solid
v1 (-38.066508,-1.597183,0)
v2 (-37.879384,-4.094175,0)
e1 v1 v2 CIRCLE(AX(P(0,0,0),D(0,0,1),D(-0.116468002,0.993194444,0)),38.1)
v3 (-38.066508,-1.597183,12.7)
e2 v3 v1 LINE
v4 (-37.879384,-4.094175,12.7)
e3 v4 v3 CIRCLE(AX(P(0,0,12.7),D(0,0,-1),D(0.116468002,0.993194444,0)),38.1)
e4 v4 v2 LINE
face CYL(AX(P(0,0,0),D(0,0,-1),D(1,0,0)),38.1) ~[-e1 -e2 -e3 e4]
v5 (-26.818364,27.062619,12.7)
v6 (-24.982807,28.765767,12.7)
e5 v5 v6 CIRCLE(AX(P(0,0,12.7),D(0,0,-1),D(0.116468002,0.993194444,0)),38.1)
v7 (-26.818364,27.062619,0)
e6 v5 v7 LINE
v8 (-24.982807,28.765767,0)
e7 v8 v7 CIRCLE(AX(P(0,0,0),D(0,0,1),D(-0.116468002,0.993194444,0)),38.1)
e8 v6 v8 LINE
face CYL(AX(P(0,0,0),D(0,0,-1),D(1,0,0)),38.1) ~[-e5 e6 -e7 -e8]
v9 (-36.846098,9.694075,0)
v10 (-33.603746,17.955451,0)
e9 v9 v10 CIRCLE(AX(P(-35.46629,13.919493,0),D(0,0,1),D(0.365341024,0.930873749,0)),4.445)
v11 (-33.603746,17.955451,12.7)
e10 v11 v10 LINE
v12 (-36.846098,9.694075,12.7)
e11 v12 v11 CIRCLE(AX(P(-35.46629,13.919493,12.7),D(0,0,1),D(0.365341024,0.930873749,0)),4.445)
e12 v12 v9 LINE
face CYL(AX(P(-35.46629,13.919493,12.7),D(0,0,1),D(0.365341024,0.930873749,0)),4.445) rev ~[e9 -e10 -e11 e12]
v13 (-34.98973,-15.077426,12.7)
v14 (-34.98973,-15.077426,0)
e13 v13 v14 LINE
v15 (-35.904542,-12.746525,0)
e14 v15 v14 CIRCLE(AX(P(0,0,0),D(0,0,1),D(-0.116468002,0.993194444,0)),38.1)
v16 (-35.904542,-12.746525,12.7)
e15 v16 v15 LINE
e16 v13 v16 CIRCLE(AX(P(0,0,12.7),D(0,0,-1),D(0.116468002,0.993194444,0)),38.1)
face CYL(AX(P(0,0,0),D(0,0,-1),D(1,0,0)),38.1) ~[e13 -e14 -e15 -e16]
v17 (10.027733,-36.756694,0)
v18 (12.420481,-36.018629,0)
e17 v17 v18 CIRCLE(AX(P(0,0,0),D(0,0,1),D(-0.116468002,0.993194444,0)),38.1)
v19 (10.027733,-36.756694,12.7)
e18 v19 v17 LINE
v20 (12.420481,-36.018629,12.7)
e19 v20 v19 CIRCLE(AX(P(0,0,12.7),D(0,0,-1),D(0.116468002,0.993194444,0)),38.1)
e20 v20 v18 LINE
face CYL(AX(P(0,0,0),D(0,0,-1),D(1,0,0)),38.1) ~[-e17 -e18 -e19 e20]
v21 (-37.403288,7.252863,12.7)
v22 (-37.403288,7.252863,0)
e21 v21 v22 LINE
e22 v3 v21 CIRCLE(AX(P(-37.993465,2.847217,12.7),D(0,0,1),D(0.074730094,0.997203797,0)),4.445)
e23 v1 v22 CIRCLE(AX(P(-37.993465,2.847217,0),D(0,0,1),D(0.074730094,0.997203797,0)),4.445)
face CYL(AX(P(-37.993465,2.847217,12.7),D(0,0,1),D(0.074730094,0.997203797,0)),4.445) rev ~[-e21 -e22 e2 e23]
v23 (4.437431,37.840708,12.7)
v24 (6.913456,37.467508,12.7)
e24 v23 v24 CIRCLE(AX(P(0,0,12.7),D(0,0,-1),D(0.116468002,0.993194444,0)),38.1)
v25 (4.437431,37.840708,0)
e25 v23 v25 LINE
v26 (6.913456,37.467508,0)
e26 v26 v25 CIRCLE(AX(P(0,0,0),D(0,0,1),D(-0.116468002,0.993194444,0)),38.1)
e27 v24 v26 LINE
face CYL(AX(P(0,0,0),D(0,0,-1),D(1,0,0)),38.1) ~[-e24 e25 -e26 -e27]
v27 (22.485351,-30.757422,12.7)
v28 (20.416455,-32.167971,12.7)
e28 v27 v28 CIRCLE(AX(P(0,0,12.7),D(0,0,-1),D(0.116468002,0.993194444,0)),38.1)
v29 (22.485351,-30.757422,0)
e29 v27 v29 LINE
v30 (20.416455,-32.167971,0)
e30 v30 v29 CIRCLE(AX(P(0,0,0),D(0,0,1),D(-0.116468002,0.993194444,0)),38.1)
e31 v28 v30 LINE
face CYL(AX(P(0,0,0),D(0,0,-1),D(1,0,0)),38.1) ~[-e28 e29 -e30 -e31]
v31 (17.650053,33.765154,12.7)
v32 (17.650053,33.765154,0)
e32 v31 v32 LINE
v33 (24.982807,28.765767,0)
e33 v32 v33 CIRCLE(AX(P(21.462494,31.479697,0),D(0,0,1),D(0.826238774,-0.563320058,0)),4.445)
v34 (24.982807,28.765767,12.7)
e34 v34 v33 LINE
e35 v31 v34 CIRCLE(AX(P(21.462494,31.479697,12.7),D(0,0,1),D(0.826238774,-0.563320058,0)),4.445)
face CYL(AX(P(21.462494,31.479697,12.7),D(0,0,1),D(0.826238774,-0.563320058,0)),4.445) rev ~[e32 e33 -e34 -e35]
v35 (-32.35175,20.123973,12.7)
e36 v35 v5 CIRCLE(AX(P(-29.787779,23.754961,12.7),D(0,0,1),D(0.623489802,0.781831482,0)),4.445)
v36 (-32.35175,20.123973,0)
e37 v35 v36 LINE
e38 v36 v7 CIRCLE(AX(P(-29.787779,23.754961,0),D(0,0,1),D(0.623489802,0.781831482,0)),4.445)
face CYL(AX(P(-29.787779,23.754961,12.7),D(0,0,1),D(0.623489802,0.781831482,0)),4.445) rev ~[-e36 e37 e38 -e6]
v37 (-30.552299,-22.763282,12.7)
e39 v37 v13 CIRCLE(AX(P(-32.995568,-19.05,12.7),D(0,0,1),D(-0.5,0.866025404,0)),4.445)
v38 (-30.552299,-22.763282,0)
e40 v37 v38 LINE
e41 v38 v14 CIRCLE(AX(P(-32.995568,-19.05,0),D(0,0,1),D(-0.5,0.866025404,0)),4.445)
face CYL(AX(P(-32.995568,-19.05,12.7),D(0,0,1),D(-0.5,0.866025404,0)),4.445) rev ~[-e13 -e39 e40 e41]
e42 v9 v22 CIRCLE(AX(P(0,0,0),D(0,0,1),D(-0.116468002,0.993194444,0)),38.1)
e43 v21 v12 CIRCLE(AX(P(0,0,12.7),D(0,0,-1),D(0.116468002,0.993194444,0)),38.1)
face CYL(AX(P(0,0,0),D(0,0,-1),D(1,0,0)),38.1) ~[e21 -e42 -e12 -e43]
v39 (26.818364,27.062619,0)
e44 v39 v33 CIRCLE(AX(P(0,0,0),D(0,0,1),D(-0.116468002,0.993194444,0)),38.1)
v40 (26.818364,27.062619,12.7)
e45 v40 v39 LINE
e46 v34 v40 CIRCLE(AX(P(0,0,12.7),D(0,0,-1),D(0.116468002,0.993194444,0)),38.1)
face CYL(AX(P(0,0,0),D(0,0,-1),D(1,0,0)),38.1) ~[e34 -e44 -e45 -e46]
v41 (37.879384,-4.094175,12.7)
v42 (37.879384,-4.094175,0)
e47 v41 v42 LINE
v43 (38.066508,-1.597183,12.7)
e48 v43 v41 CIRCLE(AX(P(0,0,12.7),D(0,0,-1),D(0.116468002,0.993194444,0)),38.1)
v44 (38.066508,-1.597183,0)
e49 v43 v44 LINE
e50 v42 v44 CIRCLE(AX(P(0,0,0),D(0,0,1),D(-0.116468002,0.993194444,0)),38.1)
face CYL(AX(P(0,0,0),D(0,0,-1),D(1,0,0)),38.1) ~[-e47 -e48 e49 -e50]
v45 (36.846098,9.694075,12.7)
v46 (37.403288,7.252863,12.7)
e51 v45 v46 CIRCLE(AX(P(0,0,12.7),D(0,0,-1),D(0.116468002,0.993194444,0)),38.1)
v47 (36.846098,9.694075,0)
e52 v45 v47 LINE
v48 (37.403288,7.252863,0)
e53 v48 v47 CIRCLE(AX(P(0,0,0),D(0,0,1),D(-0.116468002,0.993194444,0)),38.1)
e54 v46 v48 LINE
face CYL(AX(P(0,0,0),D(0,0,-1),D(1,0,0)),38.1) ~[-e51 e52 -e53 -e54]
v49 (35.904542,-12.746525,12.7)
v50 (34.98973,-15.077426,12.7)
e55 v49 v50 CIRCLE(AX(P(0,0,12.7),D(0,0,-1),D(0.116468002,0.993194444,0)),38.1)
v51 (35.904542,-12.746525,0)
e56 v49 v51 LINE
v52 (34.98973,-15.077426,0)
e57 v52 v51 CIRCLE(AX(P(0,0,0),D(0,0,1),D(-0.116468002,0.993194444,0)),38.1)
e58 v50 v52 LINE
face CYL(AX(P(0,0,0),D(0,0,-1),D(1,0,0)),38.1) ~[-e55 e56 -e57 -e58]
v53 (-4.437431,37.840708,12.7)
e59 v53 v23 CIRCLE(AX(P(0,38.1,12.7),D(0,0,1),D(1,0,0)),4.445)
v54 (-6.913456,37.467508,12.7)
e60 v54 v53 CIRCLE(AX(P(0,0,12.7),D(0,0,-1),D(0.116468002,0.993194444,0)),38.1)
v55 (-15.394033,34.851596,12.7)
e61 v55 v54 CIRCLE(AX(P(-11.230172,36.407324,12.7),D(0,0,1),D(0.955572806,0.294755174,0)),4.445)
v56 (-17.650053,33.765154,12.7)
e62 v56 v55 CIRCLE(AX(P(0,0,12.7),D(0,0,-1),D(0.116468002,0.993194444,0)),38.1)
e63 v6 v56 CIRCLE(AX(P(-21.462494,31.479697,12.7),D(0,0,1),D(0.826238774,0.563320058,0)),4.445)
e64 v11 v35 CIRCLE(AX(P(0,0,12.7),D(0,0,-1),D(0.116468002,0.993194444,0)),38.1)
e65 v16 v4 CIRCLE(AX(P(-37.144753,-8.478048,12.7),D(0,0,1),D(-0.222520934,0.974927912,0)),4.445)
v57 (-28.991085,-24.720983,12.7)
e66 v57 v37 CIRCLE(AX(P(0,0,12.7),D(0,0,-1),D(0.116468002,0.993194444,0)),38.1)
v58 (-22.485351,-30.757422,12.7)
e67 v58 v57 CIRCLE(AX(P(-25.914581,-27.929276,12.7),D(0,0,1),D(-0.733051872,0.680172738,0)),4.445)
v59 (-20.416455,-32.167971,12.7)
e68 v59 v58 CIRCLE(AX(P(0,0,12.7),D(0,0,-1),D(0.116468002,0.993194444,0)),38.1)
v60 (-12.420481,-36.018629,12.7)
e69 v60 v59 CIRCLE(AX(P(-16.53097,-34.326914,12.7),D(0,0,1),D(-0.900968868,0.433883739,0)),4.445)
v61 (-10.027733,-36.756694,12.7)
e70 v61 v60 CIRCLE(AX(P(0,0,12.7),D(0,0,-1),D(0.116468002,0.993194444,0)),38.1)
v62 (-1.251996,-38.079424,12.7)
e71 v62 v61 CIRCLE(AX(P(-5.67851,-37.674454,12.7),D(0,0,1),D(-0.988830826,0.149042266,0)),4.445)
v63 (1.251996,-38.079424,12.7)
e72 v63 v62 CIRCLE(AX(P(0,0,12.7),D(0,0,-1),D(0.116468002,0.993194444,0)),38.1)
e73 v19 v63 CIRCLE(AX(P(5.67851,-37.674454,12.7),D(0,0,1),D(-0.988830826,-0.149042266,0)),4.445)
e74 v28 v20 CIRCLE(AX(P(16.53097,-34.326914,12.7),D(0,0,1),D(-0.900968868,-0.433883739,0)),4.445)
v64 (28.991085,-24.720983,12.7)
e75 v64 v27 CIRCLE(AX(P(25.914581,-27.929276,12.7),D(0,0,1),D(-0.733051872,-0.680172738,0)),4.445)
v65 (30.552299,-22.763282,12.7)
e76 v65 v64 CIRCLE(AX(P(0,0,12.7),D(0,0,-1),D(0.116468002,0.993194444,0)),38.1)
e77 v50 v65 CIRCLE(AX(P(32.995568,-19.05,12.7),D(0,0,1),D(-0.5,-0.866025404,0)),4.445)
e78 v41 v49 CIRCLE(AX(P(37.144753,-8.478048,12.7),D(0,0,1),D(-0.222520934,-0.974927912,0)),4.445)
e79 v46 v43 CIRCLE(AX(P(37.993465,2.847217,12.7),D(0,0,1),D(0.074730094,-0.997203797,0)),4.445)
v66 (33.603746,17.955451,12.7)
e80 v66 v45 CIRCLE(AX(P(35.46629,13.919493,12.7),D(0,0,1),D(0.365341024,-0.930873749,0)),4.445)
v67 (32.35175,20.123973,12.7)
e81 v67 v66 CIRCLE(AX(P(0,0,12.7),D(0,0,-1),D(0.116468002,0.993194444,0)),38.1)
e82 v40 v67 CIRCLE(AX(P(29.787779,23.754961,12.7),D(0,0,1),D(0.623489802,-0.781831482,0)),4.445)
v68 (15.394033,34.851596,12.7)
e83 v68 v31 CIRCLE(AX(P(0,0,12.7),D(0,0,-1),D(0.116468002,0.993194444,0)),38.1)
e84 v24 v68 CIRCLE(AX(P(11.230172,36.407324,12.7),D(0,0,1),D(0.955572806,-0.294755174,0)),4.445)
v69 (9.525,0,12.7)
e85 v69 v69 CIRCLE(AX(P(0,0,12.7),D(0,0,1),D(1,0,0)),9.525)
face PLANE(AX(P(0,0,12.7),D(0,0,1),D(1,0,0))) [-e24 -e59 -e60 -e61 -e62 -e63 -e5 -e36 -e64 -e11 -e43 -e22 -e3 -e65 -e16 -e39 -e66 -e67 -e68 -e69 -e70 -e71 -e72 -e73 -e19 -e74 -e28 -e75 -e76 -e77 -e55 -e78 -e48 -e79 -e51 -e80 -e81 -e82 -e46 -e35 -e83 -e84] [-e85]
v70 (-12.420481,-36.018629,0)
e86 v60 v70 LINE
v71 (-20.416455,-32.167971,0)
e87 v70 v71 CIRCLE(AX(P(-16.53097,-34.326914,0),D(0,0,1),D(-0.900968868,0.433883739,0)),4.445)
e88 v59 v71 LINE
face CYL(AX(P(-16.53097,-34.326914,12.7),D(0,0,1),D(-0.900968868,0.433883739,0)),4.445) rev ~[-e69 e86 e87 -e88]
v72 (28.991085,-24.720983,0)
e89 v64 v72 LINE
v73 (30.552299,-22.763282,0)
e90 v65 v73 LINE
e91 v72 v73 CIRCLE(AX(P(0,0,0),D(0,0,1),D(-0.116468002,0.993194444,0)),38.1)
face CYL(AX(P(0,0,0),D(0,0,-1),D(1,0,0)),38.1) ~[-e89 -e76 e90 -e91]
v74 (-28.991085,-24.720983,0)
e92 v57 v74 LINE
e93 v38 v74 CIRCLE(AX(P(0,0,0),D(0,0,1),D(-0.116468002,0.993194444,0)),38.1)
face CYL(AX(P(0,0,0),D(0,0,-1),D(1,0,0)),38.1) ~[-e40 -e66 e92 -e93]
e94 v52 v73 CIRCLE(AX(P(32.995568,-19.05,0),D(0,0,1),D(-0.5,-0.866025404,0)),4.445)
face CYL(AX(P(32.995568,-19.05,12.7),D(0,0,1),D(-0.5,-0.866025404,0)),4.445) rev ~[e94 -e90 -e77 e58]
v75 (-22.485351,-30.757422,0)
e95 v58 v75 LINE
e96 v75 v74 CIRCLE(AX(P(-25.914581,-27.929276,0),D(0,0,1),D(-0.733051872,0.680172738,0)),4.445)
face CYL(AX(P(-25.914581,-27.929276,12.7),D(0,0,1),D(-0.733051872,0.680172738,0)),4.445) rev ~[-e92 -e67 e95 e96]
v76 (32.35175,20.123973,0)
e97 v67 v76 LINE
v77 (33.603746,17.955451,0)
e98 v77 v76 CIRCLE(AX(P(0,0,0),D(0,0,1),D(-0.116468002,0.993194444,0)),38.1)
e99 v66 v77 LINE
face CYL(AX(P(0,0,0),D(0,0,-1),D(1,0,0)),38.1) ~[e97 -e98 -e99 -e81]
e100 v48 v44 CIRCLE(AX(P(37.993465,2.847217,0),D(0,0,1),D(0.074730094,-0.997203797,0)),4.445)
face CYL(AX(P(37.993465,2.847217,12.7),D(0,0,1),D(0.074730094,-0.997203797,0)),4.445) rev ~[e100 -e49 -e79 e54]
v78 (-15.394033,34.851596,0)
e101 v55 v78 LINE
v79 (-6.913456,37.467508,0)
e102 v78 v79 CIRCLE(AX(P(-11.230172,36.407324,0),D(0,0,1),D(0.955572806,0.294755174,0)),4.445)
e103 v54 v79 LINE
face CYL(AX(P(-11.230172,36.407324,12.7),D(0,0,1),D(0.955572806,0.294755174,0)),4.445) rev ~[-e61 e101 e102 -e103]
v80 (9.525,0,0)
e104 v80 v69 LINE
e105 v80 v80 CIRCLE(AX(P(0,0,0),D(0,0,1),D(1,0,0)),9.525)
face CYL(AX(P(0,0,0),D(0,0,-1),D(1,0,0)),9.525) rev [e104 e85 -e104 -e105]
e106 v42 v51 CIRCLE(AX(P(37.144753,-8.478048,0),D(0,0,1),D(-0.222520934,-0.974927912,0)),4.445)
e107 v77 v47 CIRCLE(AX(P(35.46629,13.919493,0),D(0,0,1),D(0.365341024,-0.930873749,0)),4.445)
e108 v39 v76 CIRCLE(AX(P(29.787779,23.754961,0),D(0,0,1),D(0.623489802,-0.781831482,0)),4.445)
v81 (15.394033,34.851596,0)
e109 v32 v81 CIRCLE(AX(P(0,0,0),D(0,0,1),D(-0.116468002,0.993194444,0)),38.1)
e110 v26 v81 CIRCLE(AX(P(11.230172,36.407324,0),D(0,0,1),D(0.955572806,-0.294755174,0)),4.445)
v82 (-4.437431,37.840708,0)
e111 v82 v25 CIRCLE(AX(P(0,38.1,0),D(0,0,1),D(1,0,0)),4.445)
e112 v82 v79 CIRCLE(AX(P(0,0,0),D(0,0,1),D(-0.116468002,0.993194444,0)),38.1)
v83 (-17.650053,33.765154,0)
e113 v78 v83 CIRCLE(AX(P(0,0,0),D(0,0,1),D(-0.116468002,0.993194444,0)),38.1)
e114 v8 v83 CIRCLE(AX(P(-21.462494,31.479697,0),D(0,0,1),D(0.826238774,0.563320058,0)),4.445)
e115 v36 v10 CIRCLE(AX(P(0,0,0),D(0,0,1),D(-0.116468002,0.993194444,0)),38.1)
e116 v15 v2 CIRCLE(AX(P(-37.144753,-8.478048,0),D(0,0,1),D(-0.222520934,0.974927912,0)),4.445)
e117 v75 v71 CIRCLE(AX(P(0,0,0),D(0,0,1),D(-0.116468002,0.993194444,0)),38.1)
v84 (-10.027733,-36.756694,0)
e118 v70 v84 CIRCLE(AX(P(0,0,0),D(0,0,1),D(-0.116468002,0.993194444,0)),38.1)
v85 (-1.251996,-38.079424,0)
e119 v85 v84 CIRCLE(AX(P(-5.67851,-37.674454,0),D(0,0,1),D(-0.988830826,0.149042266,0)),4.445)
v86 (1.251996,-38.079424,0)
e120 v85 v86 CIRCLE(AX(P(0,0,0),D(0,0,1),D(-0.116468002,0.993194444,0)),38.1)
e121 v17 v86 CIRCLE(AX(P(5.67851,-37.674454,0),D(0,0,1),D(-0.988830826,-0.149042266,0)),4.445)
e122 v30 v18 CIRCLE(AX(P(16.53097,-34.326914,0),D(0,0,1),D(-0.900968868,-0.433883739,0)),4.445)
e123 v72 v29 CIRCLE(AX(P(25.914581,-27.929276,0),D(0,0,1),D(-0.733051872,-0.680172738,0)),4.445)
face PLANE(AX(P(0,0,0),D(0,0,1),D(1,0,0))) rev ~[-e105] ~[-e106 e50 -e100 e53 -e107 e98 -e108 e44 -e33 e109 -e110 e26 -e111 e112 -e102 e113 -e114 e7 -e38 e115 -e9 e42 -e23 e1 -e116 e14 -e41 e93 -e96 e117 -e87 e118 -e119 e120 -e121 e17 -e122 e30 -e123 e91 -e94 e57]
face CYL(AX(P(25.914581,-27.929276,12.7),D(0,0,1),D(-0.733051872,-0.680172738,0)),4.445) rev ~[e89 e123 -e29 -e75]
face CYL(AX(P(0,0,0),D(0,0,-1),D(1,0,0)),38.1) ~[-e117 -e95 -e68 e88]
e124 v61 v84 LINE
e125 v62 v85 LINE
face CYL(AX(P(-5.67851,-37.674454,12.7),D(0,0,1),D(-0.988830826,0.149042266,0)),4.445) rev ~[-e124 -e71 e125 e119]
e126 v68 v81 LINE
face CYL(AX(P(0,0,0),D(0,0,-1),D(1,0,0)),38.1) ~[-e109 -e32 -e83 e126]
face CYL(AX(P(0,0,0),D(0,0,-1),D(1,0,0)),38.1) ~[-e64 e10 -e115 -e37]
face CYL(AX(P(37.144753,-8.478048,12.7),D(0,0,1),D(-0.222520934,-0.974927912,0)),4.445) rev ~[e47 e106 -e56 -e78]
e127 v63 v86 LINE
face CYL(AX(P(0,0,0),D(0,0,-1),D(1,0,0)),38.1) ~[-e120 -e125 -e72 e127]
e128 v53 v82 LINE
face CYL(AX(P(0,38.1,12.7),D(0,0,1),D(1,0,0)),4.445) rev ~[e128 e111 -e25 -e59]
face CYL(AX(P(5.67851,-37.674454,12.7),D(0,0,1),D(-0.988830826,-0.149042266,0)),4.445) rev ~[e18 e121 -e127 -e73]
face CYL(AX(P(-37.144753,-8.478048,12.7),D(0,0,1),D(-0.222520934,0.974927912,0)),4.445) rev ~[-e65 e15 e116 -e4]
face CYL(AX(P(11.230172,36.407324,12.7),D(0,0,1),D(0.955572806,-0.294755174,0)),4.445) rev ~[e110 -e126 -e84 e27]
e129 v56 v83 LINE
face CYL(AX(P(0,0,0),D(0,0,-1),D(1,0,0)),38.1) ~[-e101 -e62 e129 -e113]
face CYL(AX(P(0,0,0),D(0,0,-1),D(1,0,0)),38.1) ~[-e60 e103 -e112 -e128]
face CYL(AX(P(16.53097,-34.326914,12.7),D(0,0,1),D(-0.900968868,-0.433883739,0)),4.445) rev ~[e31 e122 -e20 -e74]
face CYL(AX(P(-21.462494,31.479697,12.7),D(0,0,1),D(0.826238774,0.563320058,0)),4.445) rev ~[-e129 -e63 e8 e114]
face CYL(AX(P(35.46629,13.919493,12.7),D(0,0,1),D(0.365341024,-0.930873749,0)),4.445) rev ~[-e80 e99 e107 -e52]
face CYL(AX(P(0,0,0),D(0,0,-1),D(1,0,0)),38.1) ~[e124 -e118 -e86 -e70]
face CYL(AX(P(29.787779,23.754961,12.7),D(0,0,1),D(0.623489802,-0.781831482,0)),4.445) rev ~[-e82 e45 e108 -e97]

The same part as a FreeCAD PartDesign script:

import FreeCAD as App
import Part
import Sketcher
Q = App.Units.Quantity

doc = App.newDocument("Part")
params = doc.addObject("Spreadsheet::Sheet", "Params")
for row, (alias, value) in enumerate([
    ("sketch1_diameter", "3 in"),
    ("sketch1_diameter2", "0.75 in"),
    ("pad1_length", "0.5 in"),
    ("sketch2_diameter", "0.35 in"),
], start=1):
    params.set(f"A{row}", alias)
    params.set(f"B{row}", "=" + value)
    params.setAlias(f"B{row}", alias)

body = doc.addObject("PartDesign::Body", "Body")

sketch1 = body.newObject("Sketcher::SketchObject", "Sketch")
sketch1.AttachmentSupport = (doc.getObject("XY_Plane"), [""])
sketch1.MapMode = "FlatFace"
sketch1.addGeometry(Part.Circle(App.Vector(0, 0, 0), App.Vector(0, 0, 1), 38), False)
sketch1.addGeometry(Part.Circle(App.Vector(0, 0, 0), App.Vector(0, 0, 1), 10), False)
sketch1.addConstraint(Sketcher.Constraint("Coincident", 0, 3, -1, 1))
sketch1.addConstraint(Sketcher.Constraint("Coincident", 1, 3, -1, 1))
sketch1.addConstraint(Sketcher.Constraint("Diameter", 0, Q("3 in")))
sketch1.addConstraint(Sketcher.Constraint("Diameter", 1, Q("0.75 in")))
sketch1.setExpression("Constraints[2]", "Params.sketch1_diameter")
sketch1.setExpression("Constraints[3]", "Params.sketch1_diameter2")
pad1 = body.newObject("PartDesign::Pad", "Pad")
pad1.Profile = sketch1
pad1.setExpression("Length", "Params.pad1_length")

sketch2 = body.newObject("Sketcher::SketchObject", "Sketch001")
sketch2.AttachmentSupport = (doc.getObject("XY_Plane"), [""])
sketch2.MapMode = "FlatFace"
sketch2.AttachmentOffset = App.Placement(App.Vector(0, 0, 0.5 * 25.4), App.Rotation())
sketch2.addGeometry(Part.Circle(App.Vector(0, 38.1, 0), App.Vector(0, 0, 1), 4.4), False)
sketch2.addConstraint(Sketcher.Constraint("PointOnObject", 0, 3, -2))
sketch2.addConstraint(Sketcher.Constraint("Diameter", 0, Q("0.35 in")))
sketch2.addConstraint(Sketcher.Constraint("DistanceY", -1, 1, 0, 3, Q("1.5 in")))
sketch2.setExpression("Constraints[1]", "Params.sketch2_diameter")
pocket1 = body.newObject("PartDesign::Pocket", "Pocket")
pocket1.Profile = sketch2
pocket1.Type = "ThroughAll"
doc.recompute()

polarpattern = body.newObject("PartDesign::PolarPattern", "PolarPattern")
polarpattern.Originals = [pocket1]
polarpattern.Axis = (doc.getObject("Z_Axis"), [""])
polarpattern.Angle = 360
polarpattern.Occurrences = 21
body.Tip = polarpattern

doc.recompute()
